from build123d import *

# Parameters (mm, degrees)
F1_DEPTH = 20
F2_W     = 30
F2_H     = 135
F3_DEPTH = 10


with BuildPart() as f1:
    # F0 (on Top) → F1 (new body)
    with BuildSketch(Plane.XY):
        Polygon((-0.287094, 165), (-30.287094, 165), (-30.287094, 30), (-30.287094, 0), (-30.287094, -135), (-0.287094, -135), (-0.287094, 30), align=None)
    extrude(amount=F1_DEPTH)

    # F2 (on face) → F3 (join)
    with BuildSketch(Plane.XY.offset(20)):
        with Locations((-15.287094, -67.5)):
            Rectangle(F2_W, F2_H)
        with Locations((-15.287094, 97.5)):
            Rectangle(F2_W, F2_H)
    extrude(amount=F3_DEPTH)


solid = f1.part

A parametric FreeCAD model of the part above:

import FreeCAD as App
import Part
import Sketcher


def add_polygon(sketch, points):
    """Adds a closed chain of lines whose ends are joined by coincident constraints."""
    first, n = sketch.GeometryCount, len(points)
    for a, b in zip(points, points[1:] + points[:1]):
        sketch.addGeometry(Part.LineSegment(App.Vector(*a, 0), App.Vector(*b, 0)), False)
    for i in range(n):
        sketch.addConstraint(Sketcher.Constraint("Coincident", first + i, 2, first + (i + 1) % n, 1))

doc = App.newDocument("Part")
body = doc.addObject("PartDesign::Body", "Body")

sketch1 = body.newObject("Sketcher::SketchObject", "Sketch")
sketch1.AttachmentSupport = (doc.getObject("XY_Plane"), [""])
sketch1.MapMode = "FlatFace"
add_polygon(sketch1, [(0, 165), (-30, 165), (-30, -135), (0, -135)])
sketch1.addConstraint([
    Sketcher.Constraint("Horizontal", 0),
    Sketcher.Constraint("Vertical", 1),
    Sketcher.Constraint("Horizontal", 2),
    Sketcher.Constraint("Vertical", 3),
    Sketcher.Constraint("DistanceX", 0, 2, 0, 1, 30.0),
    Sketcher.Constraint("DistanceY", 1, 2, 1, 1, 300.0),
    Sketcher.Constraint("DistanceY", -1, 1, 0, 2, 165.0),
    Sketcher.Constraint("DistanceX", 0, 2, -1, 1, 30.287094),
])
pad1 = body.newObject("PartDesign::Pad", "Pad")
pad1.Profile = sketch1
pad1.Length = 20

sketch2 = body.newObject("Sketcher::SketchObject", "Sketch001")
sketch2.AttachmentSupport = (doc.getObject("XY_Plane"), [""])
sketch2.MapMode = "FlatFace"
sketch2.AttachmentOffset = App.Placement(App.Vector(0, 0, 20), App.Rotation())
add_polygon(sketch2, [(-30, 0), (-30, -135), (0, -135), (0, 0)])
add_polygon(sketch2, [(-30, 165), (-30, 30), (0, 30), (0, 165)])
sketch2.addConstraint([
    Sketcher.Constraint("Vertical", 0),
    Sketcher.Constraint("Horizontal", 1),
    Sketcher.Constraint("Vertical", 2),
    Sketcher.Constraint("Horizontal", 3),
    Sketcher.Constraint("Vertical", 4),
    Sketcher.Constraint("Horizontal", 5),
    Sketcher.Constraint("Vertical", 6),
    Sketcher.Constraint("Horizontal", 7),
    Sketcher.Constraint("PointOnObject", 2, 2, -1),
    Sketcher.Constraint("Vertical", 3, 2, 4, 2),
    Sketcher.Constraint("Vertical", 2, 2, 5, 2),
    Sketcher.Constraint("Equal", 2, 4),
    Sketcher.Constraint("DistanceX", 1, 1, 1, 2, 30.0),
    Sketcher.Constraint("DistanceY", 0, 2, 0, 1, 135.0),
    Sketcher.Constraint("DistanceY", -1, 1, 4, 2, 30.0),
    Sketcher.Constraint("DistanceX", 0, 2, -1, 1, 30.287094),
])
pad2 = body.newObject("PartDesign::Pad", "Pad001")
pad2.Profile = sketch2
pad2.Length = 10

doc.recompute()
